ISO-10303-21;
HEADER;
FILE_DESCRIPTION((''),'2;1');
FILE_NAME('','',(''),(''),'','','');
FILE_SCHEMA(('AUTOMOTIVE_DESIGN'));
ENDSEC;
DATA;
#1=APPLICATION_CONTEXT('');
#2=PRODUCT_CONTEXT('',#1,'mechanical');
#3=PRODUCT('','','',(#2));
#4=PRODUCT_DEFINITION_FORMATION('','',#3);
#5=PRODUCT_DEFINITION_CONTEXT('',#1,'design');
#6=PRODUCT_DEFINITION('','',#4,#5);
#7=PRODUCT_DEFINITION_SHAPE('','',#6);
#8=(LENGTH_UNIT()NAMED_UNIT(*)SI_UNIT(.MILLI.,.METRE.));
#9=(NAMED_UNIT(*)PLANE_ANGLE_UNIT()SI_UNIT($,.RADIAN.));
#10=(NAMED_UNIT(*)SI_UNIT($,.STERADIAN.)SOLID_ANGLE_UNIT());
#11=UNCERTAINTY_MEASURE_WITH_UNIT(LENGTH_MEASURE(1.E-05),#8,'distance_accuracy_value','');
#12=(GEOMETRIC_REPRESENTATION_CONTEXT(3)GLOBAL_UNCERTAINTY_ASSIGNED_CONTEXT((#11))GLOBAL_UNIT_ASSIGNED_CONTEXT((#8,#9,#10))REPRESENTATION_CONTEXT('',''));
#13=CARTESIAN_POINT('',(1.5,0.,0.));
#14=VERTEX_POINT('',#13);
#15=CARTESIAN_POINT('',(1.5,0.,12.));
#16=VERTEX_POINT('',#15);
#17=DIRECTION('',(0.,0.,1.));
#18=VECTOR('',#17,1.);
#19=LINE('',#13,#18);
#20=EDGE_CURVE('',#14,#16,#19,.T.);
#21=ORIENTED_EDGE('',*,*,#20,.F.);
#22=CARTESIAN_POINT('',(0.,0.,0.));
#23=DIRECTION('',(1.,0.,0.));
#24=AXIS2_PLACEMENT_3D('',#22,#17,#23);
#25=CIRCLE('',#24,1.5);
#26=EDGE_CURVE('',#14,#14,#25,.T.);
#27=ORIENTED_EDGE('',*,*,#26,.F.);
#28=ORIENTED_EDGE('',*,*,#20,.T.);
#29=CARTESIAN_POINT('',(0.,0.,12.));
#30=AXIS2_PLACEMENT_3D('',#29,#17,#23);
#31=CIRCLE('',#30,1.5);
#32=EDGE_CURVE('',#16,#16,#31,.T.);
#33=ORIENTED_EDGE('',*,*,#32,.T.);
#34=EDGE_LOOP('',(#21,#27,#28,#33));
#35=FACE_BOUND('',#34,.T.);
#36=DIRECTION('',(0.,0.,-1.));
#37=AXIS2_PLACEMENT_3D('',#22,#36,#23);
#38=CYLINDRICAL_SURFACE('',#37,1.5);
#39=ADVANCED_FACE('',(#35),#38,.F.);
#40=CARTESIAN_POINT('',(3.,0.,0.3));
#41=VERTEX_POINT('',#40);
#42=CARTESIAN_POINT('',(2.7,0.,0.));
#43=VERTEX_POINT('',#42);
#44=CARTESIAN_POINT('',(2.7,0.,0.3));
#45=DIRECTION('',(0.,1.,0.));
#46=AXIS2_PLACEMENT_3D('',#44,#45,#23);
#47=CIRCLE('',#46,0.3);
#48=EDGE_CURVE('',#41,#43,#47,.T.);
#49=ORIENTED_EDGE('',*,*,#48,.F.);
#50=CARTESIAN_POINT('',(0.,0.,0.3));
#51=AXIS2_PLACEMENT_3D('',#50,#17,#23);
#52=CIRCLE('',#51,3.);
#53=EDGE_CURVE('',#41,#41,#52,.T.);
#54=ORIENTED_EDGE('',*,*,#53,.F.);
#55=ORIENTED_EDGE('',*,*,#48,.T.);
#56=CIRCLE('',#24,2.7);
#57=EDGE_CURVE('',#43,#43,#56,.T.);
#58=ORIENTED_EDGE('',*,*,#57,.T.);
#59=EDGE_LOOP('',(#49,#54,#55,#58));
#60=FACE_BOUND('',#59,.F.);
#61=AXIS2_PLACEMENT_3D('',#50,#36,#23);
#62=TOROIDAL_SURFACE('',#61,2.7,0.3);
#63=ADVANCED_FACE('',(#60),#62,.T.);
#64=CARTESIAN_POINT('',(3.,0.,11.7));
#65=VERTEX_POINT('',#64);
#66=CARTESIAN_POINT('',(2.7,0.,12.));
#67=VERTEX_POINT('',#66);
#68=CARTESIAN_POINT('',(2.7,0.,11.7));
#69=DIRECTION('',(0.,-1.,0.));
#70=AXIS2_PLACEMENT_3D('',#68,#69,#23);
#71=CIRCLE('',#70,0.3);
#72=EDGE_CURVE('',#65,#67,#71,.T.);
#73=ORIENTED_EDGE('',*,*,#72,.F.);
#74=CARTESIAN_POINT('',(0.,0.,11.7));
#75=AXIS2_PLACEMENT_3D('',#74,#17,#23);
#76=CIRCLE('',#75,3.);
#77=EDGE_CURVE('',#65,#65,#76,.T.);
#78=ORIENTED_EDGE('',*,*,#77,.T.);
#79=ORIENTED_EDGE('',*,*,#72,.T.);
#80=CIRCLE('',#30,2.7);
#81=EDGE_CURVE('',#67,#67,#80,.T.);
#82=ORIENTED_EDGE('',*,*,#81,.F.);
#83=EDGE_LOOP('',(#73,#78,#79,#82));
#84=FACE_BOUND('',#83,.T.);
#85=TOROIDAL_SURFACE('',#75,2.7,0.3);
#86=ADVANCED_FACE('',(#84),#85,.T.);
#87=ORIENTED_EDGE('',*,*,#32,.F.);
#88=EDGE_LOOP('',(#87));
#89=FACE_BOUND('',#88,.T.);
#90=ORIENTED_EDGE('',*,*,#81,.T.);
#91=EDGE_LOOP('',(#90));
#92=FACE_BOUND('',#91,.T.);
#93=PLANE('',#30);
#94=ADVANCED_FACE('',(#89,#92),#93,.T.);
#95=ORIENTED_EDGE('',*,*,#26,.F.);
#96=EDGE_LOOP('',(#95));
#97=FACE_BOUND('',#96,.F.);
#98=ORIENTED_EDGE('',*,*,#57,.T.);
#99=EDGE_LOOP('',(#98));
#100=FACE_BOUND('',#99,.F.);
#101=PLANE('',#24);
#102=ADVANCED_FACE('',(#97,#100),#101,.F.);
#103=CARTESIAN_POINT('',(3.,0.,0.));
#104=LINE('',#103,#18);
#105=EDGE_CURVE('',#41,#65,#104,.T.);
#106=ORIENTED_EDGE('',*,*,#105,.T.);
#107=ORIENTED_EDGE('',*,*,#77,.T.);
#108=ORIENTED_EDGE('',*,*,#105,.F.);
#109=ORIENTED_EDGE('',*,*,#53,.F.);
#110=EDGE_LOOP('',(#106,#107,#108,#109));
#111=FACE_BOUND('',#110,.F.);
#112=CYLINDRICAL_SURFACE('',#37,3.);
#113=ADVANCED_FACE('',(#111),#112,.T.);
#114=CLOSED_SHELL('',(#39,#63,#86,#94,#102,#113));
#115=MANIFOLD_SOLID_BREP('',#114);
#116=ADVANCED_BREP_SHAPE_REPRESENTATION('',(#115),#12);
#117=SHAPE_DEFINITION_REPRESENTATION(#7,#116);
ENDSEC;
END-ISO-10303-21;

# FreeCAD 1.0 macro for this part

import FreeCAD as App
import Part
import Sketcher
from FreeCAD import Vector
Q = App.Units.Quantity


def edges_at(feature, points):
    """Names of the edges that pass closest to the given points."""
    edges = feature.Shape.Edges
    near = lambda p: min(range(len(edges)), key=lambda i: edges[i].distToShape(Part.Vertex(*p))[0])
    return sorted({f"Edge{near(p) + 1}" for p in points})

doc = App.newDocument("Part")
body = doc.addObject("PartDesign::Body", "Body")

sketch1 = body.newObject("Sketcher::SketchObject", "Sketch")
sketch1.AttachmentSupport = (doc.getObject("XY_Plane"), [""])
sketch1.MapMode = "FlatFace"
sketch1.addGeometry(Part.Circle(Vector(0, 0, 0), Vector(0, 0, 1), 3), False)
sketch1.addGeometry(Part.Circle(Vector(0, 0, 0), Vector(0, 0, 1), 1.5), False)
sketch1.addConstraint(Sketcher.Constraint("Coincident", 0, 3, -1, 1))
sketch1.addConstraint(Sketcher.Constraint("Coincident", 1, 3, -1, 1))
sketch1.addConstraint(Sketcher.Constraint("Diameter", 0, Q("6 mm")))
sketch1.addConstraint(Sketcher.Constraint("Diameter", 1, Q("3 mm")))
pad1 = body.newObject("PartDesign::Pad", "Pad")
pad1.Profile = sketch1
pad1.Length = 12
doc.recompute()

fillet = body.newObject("PartDesign::Fillet", "Fillet")
fillet.Base = (pad1, edges_at(pad1, [(-3, 0, 12), (-3, 0, 0)]))
fillet.Radius = 0.3

doc.recompute()
